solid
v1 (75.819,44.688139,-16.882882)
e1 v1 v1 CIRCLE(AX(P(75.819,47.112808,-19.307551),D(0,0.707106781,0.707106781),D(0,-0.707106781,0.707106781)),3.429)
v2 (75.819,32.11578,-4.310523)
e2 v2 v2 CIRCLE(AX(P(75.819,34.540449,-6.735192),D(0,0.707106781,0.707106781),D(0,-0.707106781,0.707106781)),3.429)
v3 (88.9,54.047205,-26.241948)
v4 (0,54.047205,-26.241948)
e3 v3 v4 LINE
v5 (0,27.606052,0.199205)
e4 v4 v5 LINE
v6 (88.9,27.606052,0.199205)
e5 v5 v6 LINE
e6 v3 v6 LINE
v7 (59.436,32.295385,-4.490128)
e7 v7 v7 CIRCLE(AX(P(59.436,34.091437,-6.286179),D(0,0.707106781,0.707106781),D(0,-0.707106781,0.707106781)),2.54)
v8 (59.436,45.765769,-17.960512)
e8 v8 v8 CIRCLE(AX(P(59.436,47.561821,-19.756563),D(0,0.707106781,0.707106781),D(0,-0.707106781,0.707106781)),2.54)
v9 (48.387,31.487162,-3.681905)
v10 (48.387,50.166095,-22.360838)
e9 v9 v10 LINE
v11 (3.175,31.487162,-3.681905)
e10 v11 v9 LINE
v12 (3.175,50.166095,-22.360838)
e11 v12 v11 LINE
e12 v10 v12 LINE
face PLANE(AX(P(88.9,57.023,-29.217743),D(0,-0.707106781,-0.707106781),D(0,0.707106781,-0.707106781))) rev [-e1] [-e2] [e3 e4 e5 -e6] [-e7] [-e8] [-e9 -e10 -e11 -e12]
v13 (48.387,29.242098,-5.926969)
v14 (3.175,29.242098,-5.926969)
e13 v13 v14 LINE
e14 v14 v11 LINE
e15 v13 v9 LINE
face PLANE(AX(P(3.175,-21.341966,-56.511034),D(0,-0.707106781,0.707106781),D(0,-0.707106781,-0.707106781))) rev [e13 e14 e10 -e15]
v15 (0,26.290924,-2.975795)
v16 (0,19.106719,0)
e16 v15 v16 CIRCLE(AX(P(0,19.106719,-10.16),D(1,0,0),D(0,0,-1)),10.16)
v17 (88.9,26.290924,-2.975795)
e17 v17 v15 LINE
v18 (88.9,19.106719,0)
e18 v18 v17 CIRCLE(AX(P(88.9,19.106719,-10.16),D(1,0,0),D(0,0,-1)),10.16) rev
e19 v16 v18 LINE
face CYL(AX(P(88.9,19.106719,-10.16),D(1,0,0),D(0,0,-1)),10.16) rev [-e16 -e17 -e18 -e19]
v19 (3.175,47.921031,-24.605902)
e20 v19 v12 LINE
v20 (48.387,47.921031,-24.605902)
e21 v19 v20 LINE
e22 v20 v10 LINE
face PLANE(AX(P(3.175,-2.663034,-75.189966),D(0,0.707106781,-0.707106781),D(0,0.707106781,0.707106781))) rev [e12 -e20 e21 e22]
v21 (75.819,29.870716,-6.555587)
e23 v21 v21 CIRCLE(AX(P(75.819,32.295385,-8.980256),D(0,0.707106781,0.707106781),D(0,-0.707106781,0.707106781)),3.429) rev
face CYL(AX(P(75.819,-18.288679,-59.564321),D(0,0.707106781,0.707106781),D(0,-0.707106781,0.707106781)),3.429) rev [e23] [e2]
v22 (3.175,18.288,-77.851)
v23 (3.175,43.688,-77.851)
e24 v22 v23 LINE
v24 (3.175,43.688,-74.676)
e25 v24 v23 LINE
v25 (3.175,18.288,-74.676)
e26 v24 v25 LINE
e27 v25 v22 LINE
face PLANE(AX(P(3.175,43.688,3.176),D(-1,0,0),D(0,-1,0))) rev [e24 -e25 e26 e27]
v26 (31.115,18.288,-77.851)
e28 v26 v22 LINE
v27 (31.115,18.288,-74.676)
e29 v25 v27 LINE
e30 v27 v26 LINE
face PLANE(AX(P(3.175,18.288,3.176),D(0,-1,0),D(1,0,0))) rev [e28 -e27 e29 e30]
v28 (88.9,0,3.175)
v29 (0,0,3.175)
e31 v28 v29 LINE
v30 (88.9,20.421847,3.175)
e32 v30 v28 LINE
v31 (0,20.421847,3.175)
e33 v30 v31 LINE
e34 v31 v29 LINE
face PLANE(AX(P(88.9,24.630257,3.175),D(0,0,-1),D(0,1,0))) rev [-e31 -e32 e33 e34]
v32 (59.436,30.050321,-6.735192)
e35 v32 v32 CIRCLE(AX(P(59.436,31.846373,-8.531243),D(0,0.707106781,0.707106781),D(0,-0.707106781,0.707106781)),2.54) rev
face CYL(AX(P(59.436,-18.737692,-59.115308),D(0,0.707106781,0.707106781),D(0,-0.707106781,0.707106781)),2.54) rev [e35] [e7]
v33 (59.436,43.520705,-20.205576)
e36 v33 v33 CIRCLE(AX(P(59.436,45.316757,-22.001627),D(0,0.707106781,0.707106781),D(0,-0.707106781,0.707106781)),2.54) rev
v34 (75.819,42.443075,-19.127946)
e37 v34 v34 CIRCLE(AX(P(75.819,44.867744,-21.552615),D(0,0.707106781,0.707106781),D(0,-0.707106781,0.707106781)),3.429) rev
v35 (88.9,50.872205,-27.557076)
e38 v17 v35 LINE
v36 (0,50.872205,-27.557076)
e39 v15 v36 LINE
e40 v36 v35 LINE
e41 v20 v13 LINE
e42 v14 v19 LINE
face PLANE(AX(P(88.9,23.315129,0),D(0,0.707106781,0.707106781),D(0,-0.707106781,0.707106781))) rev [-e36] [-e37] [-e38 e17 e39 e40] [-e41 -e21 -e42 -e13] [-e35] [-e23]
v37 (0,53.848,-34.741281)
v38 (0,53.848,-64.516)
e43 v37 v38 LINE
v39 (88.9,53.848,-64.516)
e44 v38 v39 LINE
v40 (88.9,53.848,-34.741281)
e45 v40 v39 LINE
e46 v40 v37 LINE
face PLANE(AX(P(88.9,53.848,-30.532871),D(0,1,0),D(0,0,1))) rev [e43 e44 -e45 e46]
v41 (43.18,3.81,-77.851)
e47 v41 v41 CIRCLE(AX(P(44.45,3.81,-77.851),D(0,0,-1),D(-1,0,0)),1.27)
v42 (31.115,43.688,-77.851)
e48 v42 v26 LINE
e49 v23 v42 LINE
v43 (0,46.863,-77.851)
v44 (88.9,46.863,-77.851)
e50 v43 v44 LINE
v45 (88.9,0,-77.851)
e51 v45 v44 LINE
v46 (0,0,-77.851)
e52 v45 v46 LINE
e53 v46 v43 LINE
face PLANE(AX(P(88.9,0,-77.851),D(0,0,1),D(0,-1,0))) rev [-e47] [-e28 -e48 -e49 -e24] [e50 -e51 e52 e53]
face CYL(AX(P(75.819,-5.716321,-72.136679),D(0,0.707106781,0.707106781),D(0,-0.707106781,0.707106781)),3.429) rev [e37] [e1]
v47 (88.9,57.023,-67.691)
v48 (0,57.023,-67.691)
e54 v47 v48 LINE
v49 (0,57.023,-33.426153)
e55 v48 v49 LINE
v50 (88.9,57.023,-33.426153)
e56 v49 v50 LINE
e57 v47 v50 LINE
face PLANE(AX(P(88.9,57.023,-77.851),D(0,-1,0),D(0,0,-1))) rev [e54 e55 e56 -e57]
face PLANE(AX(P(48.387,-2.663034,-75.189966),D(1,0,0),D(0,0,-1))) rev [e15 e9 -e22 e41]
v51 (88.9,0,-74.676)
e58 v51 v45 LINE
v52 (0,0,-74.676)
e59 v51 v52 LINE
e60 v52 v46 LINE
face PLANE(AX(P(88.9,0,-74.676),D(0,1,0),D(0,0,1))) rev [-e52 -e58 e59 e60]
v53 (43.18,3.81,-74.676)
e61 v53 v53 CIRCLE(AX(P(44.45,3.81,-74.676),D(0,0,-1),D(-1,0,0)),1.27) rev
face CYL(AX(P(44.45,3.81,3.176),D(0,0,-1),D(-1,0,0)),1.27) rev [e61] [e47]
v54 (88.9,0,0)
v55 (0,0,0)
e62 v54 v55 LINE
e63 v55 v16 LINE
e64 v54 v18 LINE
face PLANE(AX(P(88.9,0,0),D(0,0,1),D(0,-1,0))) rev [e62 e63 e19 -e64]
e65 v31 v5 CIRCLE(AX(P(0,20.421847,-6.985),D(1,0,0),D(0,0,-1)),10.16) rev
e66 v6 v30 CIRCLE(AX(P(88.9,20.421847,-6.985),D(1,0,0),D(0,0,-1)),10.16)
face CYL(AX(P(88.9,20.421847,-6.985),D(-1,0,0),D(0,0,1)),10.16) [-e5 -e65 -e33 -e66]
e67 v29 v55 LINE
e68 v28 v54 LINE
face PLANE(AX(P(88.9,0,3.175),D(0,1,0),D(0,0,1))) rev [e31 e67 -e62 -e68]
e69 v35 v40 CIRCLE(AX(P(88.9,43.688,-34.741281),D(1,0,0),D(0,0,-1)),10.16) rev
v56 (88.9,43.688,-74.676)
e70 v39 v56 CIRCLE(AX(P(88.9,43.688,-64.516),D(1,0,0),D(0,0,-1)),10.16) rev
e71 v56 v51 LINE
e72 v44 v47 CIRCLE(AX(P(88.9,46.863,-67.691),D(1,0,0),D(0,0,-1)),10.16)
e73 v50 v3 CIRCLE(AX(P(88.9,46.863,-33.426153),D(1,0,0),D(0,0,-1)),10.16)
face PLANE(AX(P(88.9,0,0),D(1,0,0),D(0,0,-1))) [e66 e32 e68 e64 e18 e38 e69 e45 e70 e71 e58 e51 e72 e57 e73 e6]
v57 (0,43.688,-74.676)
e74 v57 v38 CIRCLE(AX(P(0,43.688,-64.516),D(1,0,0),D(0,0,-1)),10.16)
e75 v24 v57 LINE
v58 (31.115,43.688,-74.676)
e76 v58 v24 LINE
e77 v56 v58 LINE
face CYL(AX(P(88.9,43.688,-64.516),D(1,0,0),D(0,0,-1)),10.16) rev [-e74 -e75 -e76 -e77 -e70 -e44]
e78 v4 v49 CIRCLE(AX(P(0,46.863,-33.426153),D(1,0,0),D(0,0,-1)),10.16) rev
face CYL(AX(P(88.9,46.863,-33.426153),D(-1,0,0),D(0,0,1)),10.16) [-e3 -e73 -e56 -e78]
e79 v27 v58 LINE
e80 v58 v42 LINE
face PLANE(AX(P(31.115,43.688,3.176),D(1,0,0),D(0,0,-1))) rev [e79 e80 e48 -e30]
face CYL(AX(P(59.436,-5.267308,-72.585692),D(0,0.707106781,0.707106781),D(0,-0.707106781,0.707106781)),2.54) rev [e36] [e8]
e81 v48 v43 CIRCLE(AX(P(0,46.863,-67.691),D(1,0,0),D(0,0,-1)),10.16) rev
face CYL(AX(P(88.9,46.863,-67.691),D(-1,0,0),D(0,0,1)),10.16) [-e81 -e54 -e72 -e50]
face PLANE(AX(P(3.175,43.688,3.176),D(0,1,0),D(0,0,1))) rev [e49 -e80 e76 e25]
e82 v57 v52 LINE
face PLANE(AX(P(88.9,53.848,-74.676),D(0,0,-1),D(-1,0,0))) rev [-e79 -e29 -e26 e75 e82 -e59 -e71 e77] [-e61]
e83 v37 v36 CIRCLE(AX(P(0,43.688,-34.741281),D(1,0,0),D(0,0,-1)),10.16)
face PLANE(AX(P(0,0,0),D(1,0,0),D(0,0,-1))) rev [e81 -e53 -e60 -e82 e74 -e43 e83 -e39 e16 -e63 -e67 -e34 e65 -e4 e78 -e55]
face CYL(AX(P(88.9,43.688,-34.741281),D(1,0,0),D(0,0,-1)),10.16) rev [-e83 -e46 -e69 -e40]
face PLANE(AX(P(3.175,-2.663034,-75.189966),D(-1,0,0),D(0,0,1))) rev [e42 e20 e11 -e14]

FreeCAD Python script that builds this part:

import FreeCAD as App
import Part
import Sketcher
from FreeCAD import Vector
Q = App.Units.Quantity


def edges_at(feature, points):
    """Names of the edges that pass closest to the given points."""
    edges = feature.Shape.Edges
    near = lambda p: min(range(len(edges)), key=lambda i: edges[i].distToShape(Part.Vertex(*p))[0])
    return sorted({f"Edge{near(p) + 1}" for p in points})

doc = App.newDocument("Part")
params = doc.addObject("Spreadsheet::Sheet", "Params")
for row, (alias, value) in enumerate([
    ("sketch1_length", "1.7 in"),
    ("sketch1_width", "2.12 in"),
    ("sketch1_width2", "2.245 in"),
    ("sketch1_height", "0.125 in"),
    ("pad1_length", "3.5 in"),
    ("fillet_radius", "0.4 in"),
    ("sketch2_diameter", "0.27 in"),
    ("sketch3_diameter", "0.27 in"),
    ("sketch4_diameter", "0.2 in"),
    ("sketch5_diameter", "0.2 in"),
    ("sketch6_width", "1.78 in"),
    ("sketch6_height", "1.04 in"),
    ("sketch7_diameter", "0.1 in"),
    ("sketch8_height", "1 in"),
    ("sketch8_width", "1.1 in"),
], start=1):
    params.set(f"A{row}", alias)
    params.set(f"B{row}", "=" + value)
    params.setAlias(f"B{row}", alias)

body = doc.addObject("PartDesign::Body", "Body")

# Sketch on YZ plane
sketch1 = doc.addObject("Sketcher::SketchObject", "Sketch")
body.addObject(sketch1)
sketch1.AttachmentSupport = (doc.YZ_Plane, [""])
sketch1.MapMode = "FlatFace"
sketch1.addGeometry([
    Part.LineSegment(Vector(0, 0, 0), Vector(23.315129, 0, 0)),  # 0
    Part.LineSegment(Vector(23.315129, 0, 0), Vector(53.848, -30.532871, 0)),  # 1
    Part.LineSegment(Vector(53.848, -30.532871, 0), Vector(53.848, -74.676, 0)),  # 2
    Part.LineSegment(Vector(53.848, -74.676, 0), Vector(0, -74.676, 0)),  # 3
    Part.LineSegment(Vector(0, -74.676, 0), Vector(0, -77.851, 0)),  # 4
    Part.LineSegment(Vector(0, -77.851, 0), Vector(57.023, -77.851, 0)),  # 5
    Part.LineSegment(Vector(57.023, -77.851, 0), Vector(57.023, -29.217743, 0)),  # 6
    Part.LineSegment(Vector(57.023, -29.217743, 0), Vector(24.630257, 3.175, 0)),  # 7
    Part.LineSegment(Vector(24.630257, 3.175, 0), Vector(0, 3.175, 0)),  # 8
    Part.LineSegment(Vector(0, 3.175, 0), Vector(0, 0, 0)),  # 9
], False)
sketch1.addConstraint([
    Sketcher.Constraint("Coincident", 0, 2, 1, 1),
    Sketcher.Constraint("Coincident", 1, 2, 2, 1),
    Sketcher.Constraint("Coincident", 2, 2, 3, 1),
    Sketcher.Constraint("Coincident", 3, 2, 4, 1),
    Sketcher.Constraint("Coincident", 4, 2, 5, 1),
    Sketcher.Constraint("Coincident", 5, 2, 6, 1),
    Sketcher.Constraint("Coincident", 6, 2, 7, 1),
    Sketcher.Constraint("Coincident", 7, 2, 8, 1),
    Sketcher.Constraint("Coincident", 8, 2, 9, 1),
    Sketcher.Constraint("Coincident", 9, 2, 0, 1),
    Sketcher.Constraint("Horizontal", 0),
    Sketcher.Constraint("Vertical", 2),
    Sketcher.Constraint("Horizontal", 3),
    Sketcher.Constraint("Vertical", 4),
    Sketcher.Constraint("Horizontal", 5),
    Sketcher.Constraint("Vertical", 6),
    Sketcher.Constraint("Horizontal", 8),
    Sketcher.Constraint("Vertical", 9),
    Sketcher.Constraint("Coincident", 9, 2, -1, 1),
    Sketcher.Constraint("PointOnObject", 3, 2, -2),
    Sketcher.Constraint("Parallel", 1, 7),
    Sketcher.Constraint("Equal", 4, 9),
    Sketcher.Constraint("Angle", 1, Q("-45 deg")),
    Sketcher.Constraint("Distance", 1, Q("1.7 in")),
    Sketcher.Constraint("DistanceX", 3, 2, 3, 1, Q("2.12 in")),
    Sketcher.Constraint("DistanceX", 5, 1, 5, 2, Q("2.245 in")),
    Sketcher.Constraint("DistanceY", 4, 2, 4, 1, Q("0.125 in")),
    Sketcher.Constraint("DistanceY", 2, 2, -1, 1, Q("2.94 in")),
    Sketcher.Constraint("DistanceX", 8, 2, 8, 1, 24.630257),
])
sketch1.setExpression("Constraints[23]", "Params.sketch1_length")
sketch1.setExpression("Constraints[24]", "Params.sketch1_width")
sketch1.setExpression("Constraints[25]", "Params.sketch1_width2")
sketch1.setExpression("Constraints[26]", "Params.sketch1_height")
pad1 = doc.addObject("PartDesign::Pad", "Pad")
body.addObject(pad1)
pad1.Profile = sketch1
pad1.setExpression("Length", "Params.pad1_length")
doc.recompute()

fillet = doc.addObject("PartDesign::Fillet", "Fillet")
body.addObject(fillet)
fillet.Base = (pad1, edges_at(pad1, [
    (44.45, 24.63, 3.175),
    (44.45, 57.023, -29.218),
    (44.45, 57.023, -77.851),
    (44.45, 53.848, -74.676),
    (44.45, 53.848, -30.533),
    (44.45, 23.315, 0),
]))
fillet.setExpression("Radius", "Params.fillet_radius")

# Sketch on an angled plane
sketch2 = doc.addObject("Sketcher::SketchObject", "Sketch001")
body.addObject(sketch2)
sketch2.Placement = App.Placement(Vector(0, 13.902629, 13.902629), App.Rotation(Vector(1, 0, 0), Vector(0, 0.707106781, -0.707106781), Vector(0, 0.707106781, 0.707106781), "ZXY"))
sketch2.addGeometry(Part.Circle(Vector(75.819, 46.966286, 0), Vector(0, 0, 1), 3.429), False)
sketch2.addConstraint([
    Sketcher.Constraint("Diameter", 0, Q("0.27 in")),
    Sketcher.Constraint("DistanceX", -1, 1, 0, 3, Q("2.985 in")),
    Sketcher.Constraint("DistanceY", -1, 1, 0, 3, 46.966286),
])
sketch2.setExpression("Constraints[0]", "Params.sketch2_diameter")
pocket1 = doc.addObject("PartDesign::Pocket", "Pocket")
body.addObject(pocket1)
pocket1.Profile = sketch2
pocket1.Type = "UpToFirst"

# Sketch on an angled plane
sketch3 = doc.addObject("Sketcher::SketchObject", "Sketch002")
body.addObject(sketch3)
sketch3.Placement = App.Placement(Vector(0, 13.902629, 13.902629), App.Rotation(Vector(1, 0, 0), Vector(0, 0.707106781, -0.707106781), Vector(0, 0.707106781, 0.707106781), "ZXY"))
sketch3.addGeometry(Part.Circle(Vector(75.819, 29.186286, 0), Vector(0, 0, 1), 3.429), False)
sketch3.addConstraint([
    Sketcher.Constraint("Diameter", 0, Q("0.27 in")),
    Sketcher.Constraint("DistanceX", -1, 1, 0, 3, Q("2.985 in")),
    Sketcher.Constraint("DistanceY", -1, 1, 0, 3, 29.186286),
])
sketch3.setExpression("Constraints[0]", "Params.sketch3_diameter")
pocket2 = doc.addObject("PartDesign::Pocket", "Pocket001")
body.addObject(pocket2)
pocket2.Profile = sketch3
pocket2.Type = "UpToFirst"

# Sketch on an angled plane
sketch4 = doc.addObject("Sketcher::SketchObject", "Sketch003")
body.addObject(sketch4)
sketch4.Placement = App.Placement(Vector(0, 13.902629, 13.902629), App.Rotation(Vector(1, 0, 0), Vector(0, 0.707106781, -0.707106781), Vector(0, 0.707106781, 0.707106781), "ZXY"))
sketch4.addGeometry(Part.Circle(Vector(59.436, 47.601286, 0), Vector(0, 0, 1), 2.54), False)
sketch4.addConstraint([
    Sketcher.Constraint("Diameter", 0, Q("0.2 in")),
    Sketcher.Constraint("DistanceX", -1, 1, 0, 3, Q("2.34 in")),
    Sketcher.Constraint("DistanceY", -1, 1, 0, 3, 47.601286),
])
sketch4.setExpression("Constraints[0]", "Params.sketch4_diameter")
pocket3 = doc.addObject("PartDesign::Pocket", "Pocket002")
body.addObject(pocket3)
pocket3.Profile = sketch4
pocket3.Type = "UpToFirst"

# Sketch on an angled plane
sketch5 = doc.addObject("Sketcher::SketchObject", "Sketch004")
body.addObject(sketch5)
sketch5.Placement = App.Placement(Vector(0, 13.902629, 13.902629), App.Rotation(Vector(1, 0, 0), Vector(0, 0.707106781, -0.707106781), Vector(0, 0.707106781, 0.707106781), "ZXY"))
sketch5.addGeometry(Part.Circle(Vector(59.436, 28.551286, 0), Vector(0, 0, 1), 2.54), False)
sketch5.addConstraint([
    Sketcher.Constraint("Diameter", 0, Q("0.2 in")),
    Sketcher.Constraint("DistanceX", -1, 1, 0, 3, Q("2.34 in")),
    Sketcher.Constraint("DistanceY", -1, 1, 0, 3, 28.551286),
])
sketch5.setExpression("Constraints[0]", "Params.sketch5_diameter")
pocket4 = doc.addObject("PartDesign::Pocket", "Pocket003")
body.addObject(pocket4)
pocket4.Profile = sketch5
pocket4.Type = "UpToFirst"

# Sketch on an angled plane
sketch6 = doc.addObject("Sketcher::SketchObject", "Sketch005")
body.addObject(sketch6)
sketch6.Placement = App.Placement(Vector(0, 13.902629, 13.902629), App.Rotation(Vector(1, 0, 0), Vector(0, 0.707106781, -0.707106781), Vector(0, 0.707106781, 0.707106781), "ZXY"))
sketch6.addGeometry([
    Part.LineSegment(Vector(3.175, 51.284286, 0), Vector(3.175, 24.868286, 0)),
    Part.LineSegment(Vector(3.175, 24.868286, 0), Vector(48.387, 24.868286, 0)),
    Part.LineSegment(Vector(48.387, 24.868286, 0), Vector(48.387, 51.284286, 0)),
    Part.LineSegment(Vector(48.387, 51.284286, 0), Vector(3.175, 51.284286, 0)),
], False)
sketch6.addConstraint([
    Sketcher.Constraint("Coincident", 0, 2, 1, 1),
    Sketcher.Constraint("Coincident", 1, 2, 2, 1),
    Sketcher.Constraint("Coincident", 2, 2, 3, 1),
    Sketcher.Constraint("Coincident", 3, 2, 0, 1),
    Sketcher.Constraint("Vertical", 0),
    Sketcher.Constraint("Horizontal", 1),
    Sketcher.Constraint("Vertical", 2),
    Sketcher.Constraint("Horizontal", 3),
    Sketcher.Constraint("DistanceX", 1, 1, 1, 2, Q("1.78 in")),
    Sketcher.Constraint("DistanceY", 0, 2, 0, 1, Q("1.04 in")),
    Sketcher.Constraint("DistanceX", -1, 1, 0, 2, Q("0.125 in")),
    Sketcher.Constraint("DistanceY", -1, 1, 0, 2, 24.868286),
])
sketch6.setExpression("Constraints[8]", "Params.sketch6_width")
sketch6.setExpression("Constraints[9]", "Params.sketch6_height")
pocket5 = doc.addObject("PartDesign::Pocket", "Pocket004")
body.addObject(pocket5)
pocket5.Profile = sketch6
pocket5.Type = "UpToFirst"

# Sketch on XY plane
sketch7 = doc.addObject("Sketcher::SketchObject", "Sketch006")
body.addObject(sketch7)
sketch7.AttachmentSupport = (doc.XY_Plane, [""])
sketch7.MapMode = "FlatFace"
sketch7.AttachmentOffset = App.Placement(Vector(0, 0, -3.065 * 25.4), App.Rotation())
sketch7.addGeometry(Part.Circle(Vector(44.45, 3.81, 0), Vector(0, 0, 1), 1.27), False)
sketch7.addConstraint([
    Sketcher.Constraint("Diameter", 0, Q("0.1 in")),
    Sketcher.Constraint("DistanceX", -1, 1, 0, 3, Q("1.75 in")),
    Sketcher.Constraint("DistanceY", -1, 1, 0, 3, Q("0.15 in")),
])
sketch7.setExpression("Constraints[0]", "Params.sketch7_diameter")
pocket6 = doc.addObject("PartDesign::Pocket", "Pocket005")
body.addObject(pocket6)
pocket6.Profile = sketch7
pocket6.Type = "UpToFirst"
pocket6.Reversed = True

# Sketch on XY plane
sketch8 = doc.addObject("Sketcher::SketchObject", "Sketch007")
body.addObject(sketch8)
sketch8.AttachmentSupport = (doc.XY_Plane, [""])
sketch8.MapMode = "FlatFace"
sketch8.AttachmentOffset = App.Placement(Vector(0, 0, -3.065 * 25.4), App.Rotation())
sketch8.addGeometry([
    Part.LineSegment(Vector(31.115, 43.688, 0), Vector(31.115, 18.288, 0)),
    Part.LineSegment(Vector(31.115, 18.288, 0), Vector(3.175, 18.288, 0)),
    Part.LineSegment(Vector(3.175, 18.288, 0), Vector(3.175, 43.688, 0)),
    Part.LineSegment(Vector(3.175, 43.688, 0), Vector(31.115, 43.688, 0)),
], False)
sketch8.addConstraint([
    Sketcher.Constraint("Coincident", 0, 2, 1, 1),
    Sketcher.Constraint("Coincident", 1, 2, 2, 1),
    Sketcher.Constraint("Coincident", 2, 2, 3, 1),
    Sketcher.Constraint("Coincident", 3, 2, 0, 1),
    Sketcher.Constraint("Vertical", 0),
    Sketcher.Constraint("Horizontal", 1),
    Sketcher.Constraint("Vertical", 2),
    Sketcher.Constraint("Horizontal", 3),
    Sketcher.Constraint("DistanceY", 0, 2, 0, 1, Q("1 in")),
    Sketcher.Constraint("DistanceX", 1, 2, 1, 1, Q("1.1 in")),
    Sketcher.Constraint("DistanceY", -1, 1, 0, 2, Q("0.72 in")),
    Sketcher.Constraint("DistanceX", -1, 1, 0, 2, Q("1.225 in")),
])
sketch8.setExpression("Constraints[8]", "Params.sketch8_height")
sketch8.setExpression("Constraints[9]", "Params.sketch8_width")
pocket7 = doc.addObject("PartDesign::Pocket", "Pocket006")
body.addObject(pocket7)
pocket7.Profile = sketch8
pocket7.Type = "UpToFirst"
pocket7.Reversed = True

doc.recompute()
